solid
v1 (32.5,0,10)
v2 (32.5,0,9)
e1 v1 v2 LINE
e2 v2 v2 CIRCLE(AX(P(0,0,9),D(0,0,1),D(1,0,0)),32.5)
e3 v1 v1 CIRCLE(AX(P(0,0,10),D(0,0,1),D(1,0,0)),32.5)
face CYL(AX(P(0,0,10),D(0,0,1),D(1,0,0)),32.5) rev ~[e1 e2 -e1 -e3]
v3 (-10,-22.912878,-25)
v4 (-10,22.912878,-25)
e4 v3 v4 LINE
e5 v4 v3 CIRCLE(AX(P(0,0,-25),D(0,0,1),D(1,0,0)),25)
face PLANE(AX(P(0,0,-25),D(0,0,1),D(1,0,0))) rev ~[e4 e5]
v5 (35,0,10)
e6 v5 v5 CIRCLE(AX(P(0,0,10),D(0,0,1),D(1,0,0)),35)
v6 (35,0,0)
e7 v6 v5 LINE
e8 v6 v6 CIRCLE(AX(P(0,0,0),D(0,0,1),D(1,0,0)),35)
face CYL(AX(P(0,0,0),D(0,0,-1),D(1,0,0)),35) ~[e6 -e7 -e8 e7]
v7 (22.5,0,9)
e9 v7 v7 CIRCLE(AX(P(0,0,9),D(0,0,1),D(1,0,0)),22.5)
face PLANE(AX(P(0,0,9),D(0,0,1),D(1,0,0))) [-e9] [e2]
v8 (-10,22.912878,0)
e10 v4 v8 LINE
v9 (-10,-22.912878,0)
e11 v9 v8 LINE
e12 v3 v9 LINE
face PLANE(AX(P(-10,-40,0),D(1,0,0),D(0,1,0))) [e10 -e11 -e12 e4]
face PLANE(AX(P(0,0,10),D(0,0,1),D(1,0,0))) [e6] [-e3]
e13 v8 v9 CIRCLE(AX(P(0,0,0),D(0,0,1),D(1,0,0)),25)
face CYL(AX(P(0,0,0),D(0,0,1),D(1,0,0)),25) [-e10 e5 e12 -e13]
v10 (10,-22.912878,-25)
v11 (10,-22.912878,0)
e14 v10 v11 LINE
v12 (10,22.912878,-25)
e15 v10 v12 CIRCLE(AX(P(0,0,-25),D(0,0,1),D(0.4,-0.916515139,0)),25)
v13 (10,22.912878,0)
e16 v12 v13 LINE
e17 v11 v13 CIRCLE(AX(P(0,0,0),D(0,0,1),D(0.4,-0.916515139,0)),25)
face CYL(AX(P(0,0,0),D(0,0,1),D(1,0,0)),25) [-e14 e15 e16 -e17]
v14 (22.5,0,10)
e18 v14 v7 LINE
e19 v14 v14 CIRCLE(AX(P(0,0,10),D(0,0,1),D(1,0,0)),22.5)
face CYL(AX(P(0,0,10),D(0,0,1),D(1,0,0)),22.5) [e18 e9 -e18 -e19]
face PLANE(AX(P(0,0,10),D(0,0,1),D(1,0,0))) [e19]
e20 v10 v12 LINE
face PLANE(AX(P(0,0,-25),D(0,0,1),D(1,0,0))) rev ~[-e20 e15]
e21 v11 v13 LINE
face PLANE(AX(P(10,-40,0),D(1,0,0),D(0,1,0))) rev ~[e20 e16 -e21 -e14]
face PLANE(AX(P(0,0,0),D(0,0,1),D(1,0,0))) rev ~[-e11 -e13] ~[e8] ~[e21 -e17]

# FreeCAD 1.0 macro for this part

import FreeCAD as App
import Part
import Sketcher
from FreeCAD import Vector
Q = App.Units.Quantity


def add_polygon(sketch, points):
    """Adds a closed chain of lines whose ends are joined by coincident constraints."""
    first, n = sketch.GeometryCount, len(points)
    for a, b in zip(points, points[1:] + points[:1]):
        sketch.addGeometry(Part.LineSegment(App.Vector(*a, 0), App.Vector(*b, 0)), False)
    for i in range(n):
        sketch.addConstraint(Sketcher.Constraint("Coincident", first + i, 2, first + (i + 1) % n, 1))

doc = App.newDocument("Part")
body = doc.addObject("PartDesign::Body", "Body")

# Sketch on XY plane
sketch1 = body.newObject("Sketcher::SketchObject", "Sketch")
sketch1.AttachmentSupport = (doc.getObject("XY_Plane"), [""])
sketch1.MapMode = "FlatFace"
sketch1.addGeometry(Part.Circle(Vector(0, 0, 0), Vector(0, 0, 1), 35), False)
sketch1.addConstraint([
    Sketcher.Constraint("Coincident", 0, 3, -1, 1),
    Sketcher.Constraint("Diameter", 0, Q("70 mm")),
])
pad1 = body.newObject("PartDesign::Pad", "Pad")
pad1.Profile = sketch1
pad1.Length = 10

# Sketch on XY plane
sketch2 = body.newObject("Sketcher::SketchObject", "Sketch001")
sketch2.AttachmentSupport = (doc.getObject("XY_Plane"), [""])
sketch2.MapMode = "FlatFace"
sketch2.addGeometry(Part.Circle(Vector(0, 0, 0), Vector(0, 0, 1), 25), False)
sketch2.addConstraint([
    Sketcher.Constraint("Coincident", 0, 3, -1, 1),
    Sketcher.Constraint("Diameter", 0, Q("50 mm")),
])
pad2 = body.newObject("PartDesign::Pad", "Pad001")
pad2.Profile = sketch2
pad2.Length = 25
pad2.Reversed = True

# Sketch on XY plane
sketch3 = body.newObject("Sketcher::SketchObject", "Sketch002")
sketch3.AttachmentSupport = (doc.getObject("XY_Plane"), [""])
sketch3.MapMode = "FlatFace"
add_polygon(sketch3, [(-10, 40), (-10, -40), (10, -40), (10, 40)])  # lines 0-3
sketch3.addConstraint([
    Sketcher.Constraint("Vertical", 0),
    Sketcher.Constraint("Horizontal", 1),
    Sketcher.Constraint("Vertical", 2),
    Sketcher.Constraint("Horizontal", 3),
    Sketcher.Constraint("Symmetric", 0, 2, 2, 2, -1, 1),
    Sketcher.Constraint("DistanceX", 1, 1, 1, 2, Q("20 mm")),
    Sketcher.Constraint("DistanceY", 0, 2, 0, 1, Q("80 mm")),
])
pocket1 = body.newObject("PartDesign::Pocket", "Pocket")
pocket1.Profile = sketch3
pocket1.Length = 25

# Sketch on XY plane
sketch4 = body.newObject("Sketcher::SketchObject", "Sketch003")
sketch4.AttachmentSupport = (doc.getObject("XY_Plane"), [""])
sketch4.MapMode = "FlatFace"
sketch4.AttachmentOffset = App.Placement(Vector(0, 0, 10), App.Rotation())
sketch4.addGeometry([
    Part.Circle(Vector(0, 0, 0), Vector(0, 0, 1), 32),
    Part.Circle(Vector(0, 0, 0), Vector(0, 0, 1), 22),
], False)
sketch4.addConstraint([
    Sketcher.Constraint("Coincident", 0, 3, -1, 1),
    Sketcher.Constraint("Coincident", 1, 3, -1, 1),
    Sketcher.Constraint("Diameter", 0, Q("65 mm")),
    Sketcher.Constraint("Diameter", 1, Q("45 mm")),
])
pocket2 = body.newObject("PartDesign::Pocket", "Pocket001")
pocket2.Profile = sketch4
pocket2.Length = 1

doc.recompute()
